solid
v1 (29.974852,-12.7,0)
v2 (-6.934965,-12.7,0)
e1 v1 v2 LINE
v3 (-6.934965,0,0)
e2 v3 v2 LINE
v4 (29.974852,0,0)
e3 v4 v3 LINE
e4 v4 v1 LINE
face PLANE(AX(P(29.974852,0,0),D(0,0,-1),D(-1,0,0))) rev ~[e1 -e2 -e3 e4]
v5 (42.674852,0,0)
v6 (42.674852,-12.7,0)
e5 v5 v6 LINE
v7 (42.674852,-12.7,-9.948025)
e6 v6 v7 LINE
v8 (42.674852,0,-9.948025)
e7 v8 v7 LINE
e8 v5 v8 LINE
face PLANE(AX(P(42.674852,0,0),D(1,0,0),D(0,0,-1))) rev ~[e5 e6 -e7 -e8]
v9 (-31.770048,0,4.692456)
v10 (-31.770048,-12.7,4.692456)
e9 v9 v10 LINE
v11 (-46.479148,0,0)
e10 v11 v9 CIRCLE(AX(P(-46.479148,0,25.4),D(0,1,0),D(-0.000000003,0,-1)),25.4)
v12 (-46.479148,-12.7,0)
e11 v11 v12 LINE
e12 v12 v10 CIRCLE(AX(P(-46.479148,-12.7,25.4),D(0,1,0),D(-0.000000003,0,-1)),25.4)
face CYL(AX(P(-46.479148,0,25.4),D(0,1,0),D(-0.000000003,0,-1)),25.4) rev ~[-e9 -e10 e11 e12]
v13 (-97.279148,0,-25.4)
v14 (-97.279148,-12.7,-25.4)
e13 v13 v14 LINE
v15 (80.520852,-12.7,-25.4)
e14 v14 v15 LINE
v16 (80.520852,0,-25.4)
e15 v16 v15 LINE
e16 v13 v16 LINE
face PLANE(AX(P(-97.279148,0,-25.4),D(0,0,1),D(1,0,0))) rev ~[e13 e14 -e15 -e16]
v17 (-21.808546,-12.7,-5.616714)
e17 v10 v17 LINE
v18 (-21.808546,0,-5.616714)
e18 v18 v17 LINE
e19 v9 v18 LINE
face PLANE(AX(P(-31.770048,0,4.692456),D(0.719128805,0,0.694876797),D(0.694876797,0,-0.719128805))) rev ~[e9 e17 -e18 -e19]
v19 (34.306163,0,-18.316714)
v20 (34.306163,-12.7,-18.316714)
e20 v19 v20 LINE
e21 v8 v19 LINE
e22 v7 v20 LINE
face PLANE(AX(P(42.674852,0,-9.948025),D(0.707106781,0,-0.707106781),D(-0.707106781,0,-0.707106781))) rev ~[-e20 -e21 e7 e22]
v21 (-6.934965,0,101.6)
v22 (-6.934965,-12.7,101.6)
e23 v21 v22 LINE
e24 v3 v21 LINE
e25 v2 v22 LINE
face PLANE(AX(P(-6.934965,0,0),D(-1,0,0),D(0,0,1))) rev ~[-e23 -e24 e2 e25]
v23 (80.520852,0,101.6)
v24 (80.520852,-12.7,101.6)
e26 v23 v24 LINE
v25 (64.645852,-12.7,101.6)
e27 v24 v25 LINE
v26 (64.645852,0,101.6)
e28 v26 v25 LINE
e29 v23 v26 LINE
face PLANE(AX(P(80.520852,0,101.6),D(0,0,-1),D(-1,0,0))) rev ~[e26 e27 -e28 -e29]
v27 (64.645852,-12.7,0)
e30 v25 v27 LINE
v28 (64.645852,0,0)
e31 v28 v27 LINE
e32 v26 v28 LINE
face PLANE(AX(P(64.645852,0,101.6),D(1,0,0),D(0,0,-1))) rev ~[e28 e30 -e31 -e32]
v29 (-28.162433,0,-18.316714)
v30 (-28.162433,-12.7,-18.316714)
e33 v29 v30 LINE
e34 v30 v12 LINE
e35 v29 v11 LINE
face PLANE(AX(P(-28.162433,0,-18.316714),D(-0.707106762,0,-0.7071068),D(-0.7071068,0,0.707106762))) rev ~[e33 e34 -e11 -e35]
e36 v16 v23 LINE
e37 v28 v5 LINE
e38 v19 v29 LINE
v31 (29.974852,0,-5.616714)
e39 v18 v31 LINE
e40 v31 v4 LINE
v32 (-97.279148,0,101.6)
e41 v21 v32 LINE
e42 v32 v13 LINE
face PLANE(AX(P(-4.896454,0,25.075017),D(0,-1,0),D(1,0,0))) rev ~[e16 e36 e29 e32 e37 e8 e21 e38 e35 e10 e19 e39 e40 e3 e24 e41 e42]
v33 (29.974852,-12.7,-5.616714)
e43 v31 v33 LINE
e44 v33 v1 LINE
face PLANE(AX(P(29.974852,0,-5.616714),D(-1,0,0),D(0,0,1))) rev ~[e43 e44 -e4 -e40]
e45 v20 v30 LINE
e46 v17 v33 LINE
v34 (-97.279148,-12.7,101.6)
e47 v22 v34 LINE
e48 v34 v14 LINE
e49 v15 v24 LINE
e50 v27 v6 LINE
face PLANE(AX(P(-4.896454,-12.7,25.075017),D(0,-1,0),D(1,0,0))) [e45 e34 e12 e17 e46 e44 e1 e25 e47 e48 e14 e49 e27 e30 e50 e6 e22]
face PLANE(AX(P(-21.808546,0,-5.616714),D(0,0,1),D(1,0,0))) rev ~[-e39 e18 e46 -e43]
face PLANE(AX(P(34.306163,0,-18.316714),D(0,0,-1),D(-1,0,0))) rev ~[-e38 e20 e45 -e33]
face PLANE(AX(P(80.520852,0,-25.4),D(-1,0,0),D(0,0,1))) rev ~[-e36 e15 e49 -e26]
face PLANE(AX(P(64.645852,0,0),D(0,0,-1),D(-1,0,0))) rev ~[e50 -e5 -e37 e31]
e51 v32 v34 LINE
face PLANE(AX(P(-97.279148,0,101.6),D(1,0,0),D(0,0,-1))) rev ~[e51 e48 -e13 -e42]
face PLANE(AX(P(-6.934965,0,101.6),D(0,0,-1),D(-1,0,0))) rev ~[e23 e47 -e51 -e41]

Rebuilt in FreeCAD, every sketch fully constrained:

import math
import FreeCAD as App
import Part
import Sketcher

V = App.Vector
Q = App.Units.Quantity

doc = App.newDocument("Part")
params = doc.addObject("Spreadsheet::Sheet", "Params")
for row, (alias, value) in enumerate([
    ("sketch1_radius", "1 in"),
    ("sketch1_width", "7 in"),
    ("sketch1_height", "5 in"),
    ("sketch1_height2", "4 in"),
    ("sketch1_width2", "0.625 in"),
    ("pad1_length", "0.5 in"),
], start=1):
    params.set(f"A{row}", alias)
    params.set(f"B{row}", "=" + value)
    params.setAlias(f"B{row}", alias)

body = doc.addObject("PartDesign::Body", "Body")

# Sketch on XZ plane
sketch1 = doc.addObject("Sketcher::SketchObject", "Sketch")
body.addObject(sketch1)
sketch1.AttachmentSupport = (doc.XZ_Plane, [""])
sketch1.MapMode = "FlatFace"
sketch1.addGeometry([
    Part.LineSegment(V(-6.934965, 101.6, 0), V(-97.279148, 101.6, 0)),  # 0
    Part.LineSegment(V(-97.279148, 101.6, 0), V(-97.279148, -25.4, 0)),  # 1
    Part.LineSegment(V(-97.279148, -25.4, 0), V(80.520852, -25.4, 0)),  # 2
    Part.LineSegment(V(80.520852, -25.4, 0), V(80.520852, 101.6, 0)),  # 3
    Part.LineSegment(V(80.520852, 101.6, 0), V(64.645852, 101.6, 0)),  # 4
    Part.LineSegment(V(64.645852, 101.6, 0), V(64.645852, 0, 0)),  # 5
    Part.LineSegment(V(64.645852, 0, 0), V(42.674852, 0, 0)),  # 6
    Part.LineSegment(V(42.674852, 0, 0), V(42.674852, -9.948025, 0)),  # 7
    Part.LineSegment(V(42.674852, -9.948025, 0), V(34.306163, -18.316714, 0)),  # 8
    Part.LineSegment(V(34.306163, -18.316714, 0), V(-28.162433, -18.316714, 0)),  # 9
    Part.LineSegment(V(-28.162433, -18.316714, 0), V(-46.479148, 0, 0)),  # 10
    Part.ArcOfCircle(Part.Circle(V(-46.479148, 25.4, 0), V(0, 0, 1), 25.4), math.radians(-54.612844), math.radians(270)),  # 11
    Part.LineSegment(V(-31.770048, 4.692456, 0), V(-21.808546, -5.616714, 0)),  # 12
    Part.LineSegment(V(-21.808546, -5.616714, 0), V(29.974852, -5.616714, 0)),  # 13
    Part.LineSegment(V(29.974852, -5.616714, 0), V(29.974852, 0, 0)),  # 14
    Part.LineSegment(V(29.974852, 0, 0), V(-6.934965, 0, 0)),  # 15
    Part.LineSegment(V(-6.934965, 0, 0), V(-6.934965, 101.6, 0)),  # 16
], False)
sketch1.addConstraint([
    Sketcher.Constraint("Coincident", 0, 2, 1, 1),
    Sketcher.Constraint("Coincident", 1, 2, 2, 1),
    Sketcher.Constraint("Coincident", 2, 2, 3, 1),
    Sketcher.Constraint("Coincident", 3, 2, 4, 1),
    Sketcher.Constraint("Coincident", 4, 2, 5, 1),
    Sketcher.Constraint("Coincident", 5, 2, 6, 1),
    Sketcher.Constraint("Coincident", 6, 2, 7, 1),
    Sketcher.Constraint("Coincident", 7, 2, 8, 1),
    Sketcher.Constraint("Coincident", 8, 2, 9, 1),
    Sketcher.Constraint("Coincident", 9, 2, 10, 1),
    Sketcher.Constraint("Coincident", 10, 2, 11, 2),
    Sketcher.Constraint("Coincident", 11, 1, 12, 1),
    Sketcher.Constraint("Coincident", 12, 2, 13, 1),
    Sketcher.Constraint("Coincident", 13, 2, 14, 1),
    Sketcher.Constraint("Coincident", 14, 2, 15, 1),
    Sketcher.Constraint("Coincident", 15, 2, 16, 1),
    Sketcher.Constraint("Coincident", 16, 2, 0, 1),
    Sketcher.Constraint("Horizontal", 0),
    Sketcher.Constraint("Vertical", 1),
    Sketcher.Constraint("Horizontal", 2),
    Sketcher.Constraint("Vertical", 3),
    Sketcher.Constraint("Horizontal", 4),
    Sketcher.Constraint("Vertical", 5),
    Sketcher.Constraint("Horizontal", 6),
    Sketcher.Constraint("Vertical", 7),
    Sketcher.Constraint("Horizontal", 9),
    Sketcher.Constraint("Horizontal", 13),
    Sketcher.Constraint("Vertical", 14),
    Sketcher.Constraint("Horizontal", 15),
    Sketcher.Constraint("Vertical", 16),
    Sketcher.Constraint("PointOnObject", 5, 2, -1),
    Sketcher.Constraint("PointOnObject", 10, 2, -1),
    Sketcher.Constraint("PointOnObject", 14, 2, -1),
    Sketcher.Constraint("Perpendicular", 8, 10),
    Sketcher.Constraint("Horizontal", 0, 2, 3, 2),
    Sketcher.Constraint("Vertical", 11, 3, 10, 2),
    Sketcher.Constraint("Radius", 11, Q("1 in")),
    Sketcher.Constraint("DistanceX", 2, 1, 2, 2, Q("7 in")),
    Sketcher.Constraint("DistanceY", 1, 2, 1, 1, Q("5 in")),
    Sketcher.Constraint("DistanceY", 5, 2, 5, 1, Q("4 in")),
    Sketcher.Constraint("Angle", 8, Q("-135 deg")),
    Sketcher.Constraint("DistanceX", 0, 2, 11, 3, Q("2 in")),
    Sketcher.Constraint("DistanceY", 9, 2, 12, 2, Q("0.5 in")),
    Sketcher.Constraint("DistanceX", 13, 2, 7, 2, Q("0.5 in")),
    Sketcher.Constraint("DistanceX", 4, 2, 4, 1, Q("0.625 in")),
    Sketcher.Constraint("DistanceX", 6, 2, 6, 1, Q("0.865 in")),
    Sketcher.Constraint("DistanceX", 10, 2, 11, 1, 14.7091),
    Sketcher.Constraint("DistanceX", 11, 3, 12, 2, 24.670602),
    Sketcher.Constraint("DistanceX", 0, 2, 0, 1, 90.344183),
    Sketcher.Constraint("DistanceX", 9, 2, 9, 1, 62.468596),
    Sketcher.Constraint("DistanceY", 7, 2, 7, 1, 9.948025),
    Sketcher.Constraint("DistanceX", 0, 2, -1, 1, 97.279148),
])
sketch1.setExpression("Constraints[36]", "Params.sketch1_radius")
sketch1.setExpression("Constraints[37]", "Params.sketch1_width")
sketch1.setExpression("Constraints[38]", "Params.sketch1_height")
sketch1.setExpression("Constraints[39]", "Params.sketch1_height2")
sketch1.setExpression("Constraints[44]", "Params.sketch1_width2")
pad1 = doc.addObject("PartDesign::Pad", "Pad")
body.addObject(pad1)
pad1.Profile = sketch1
pad1.setExpression("Length", "Params.pad1_length")

doc.recompute()
